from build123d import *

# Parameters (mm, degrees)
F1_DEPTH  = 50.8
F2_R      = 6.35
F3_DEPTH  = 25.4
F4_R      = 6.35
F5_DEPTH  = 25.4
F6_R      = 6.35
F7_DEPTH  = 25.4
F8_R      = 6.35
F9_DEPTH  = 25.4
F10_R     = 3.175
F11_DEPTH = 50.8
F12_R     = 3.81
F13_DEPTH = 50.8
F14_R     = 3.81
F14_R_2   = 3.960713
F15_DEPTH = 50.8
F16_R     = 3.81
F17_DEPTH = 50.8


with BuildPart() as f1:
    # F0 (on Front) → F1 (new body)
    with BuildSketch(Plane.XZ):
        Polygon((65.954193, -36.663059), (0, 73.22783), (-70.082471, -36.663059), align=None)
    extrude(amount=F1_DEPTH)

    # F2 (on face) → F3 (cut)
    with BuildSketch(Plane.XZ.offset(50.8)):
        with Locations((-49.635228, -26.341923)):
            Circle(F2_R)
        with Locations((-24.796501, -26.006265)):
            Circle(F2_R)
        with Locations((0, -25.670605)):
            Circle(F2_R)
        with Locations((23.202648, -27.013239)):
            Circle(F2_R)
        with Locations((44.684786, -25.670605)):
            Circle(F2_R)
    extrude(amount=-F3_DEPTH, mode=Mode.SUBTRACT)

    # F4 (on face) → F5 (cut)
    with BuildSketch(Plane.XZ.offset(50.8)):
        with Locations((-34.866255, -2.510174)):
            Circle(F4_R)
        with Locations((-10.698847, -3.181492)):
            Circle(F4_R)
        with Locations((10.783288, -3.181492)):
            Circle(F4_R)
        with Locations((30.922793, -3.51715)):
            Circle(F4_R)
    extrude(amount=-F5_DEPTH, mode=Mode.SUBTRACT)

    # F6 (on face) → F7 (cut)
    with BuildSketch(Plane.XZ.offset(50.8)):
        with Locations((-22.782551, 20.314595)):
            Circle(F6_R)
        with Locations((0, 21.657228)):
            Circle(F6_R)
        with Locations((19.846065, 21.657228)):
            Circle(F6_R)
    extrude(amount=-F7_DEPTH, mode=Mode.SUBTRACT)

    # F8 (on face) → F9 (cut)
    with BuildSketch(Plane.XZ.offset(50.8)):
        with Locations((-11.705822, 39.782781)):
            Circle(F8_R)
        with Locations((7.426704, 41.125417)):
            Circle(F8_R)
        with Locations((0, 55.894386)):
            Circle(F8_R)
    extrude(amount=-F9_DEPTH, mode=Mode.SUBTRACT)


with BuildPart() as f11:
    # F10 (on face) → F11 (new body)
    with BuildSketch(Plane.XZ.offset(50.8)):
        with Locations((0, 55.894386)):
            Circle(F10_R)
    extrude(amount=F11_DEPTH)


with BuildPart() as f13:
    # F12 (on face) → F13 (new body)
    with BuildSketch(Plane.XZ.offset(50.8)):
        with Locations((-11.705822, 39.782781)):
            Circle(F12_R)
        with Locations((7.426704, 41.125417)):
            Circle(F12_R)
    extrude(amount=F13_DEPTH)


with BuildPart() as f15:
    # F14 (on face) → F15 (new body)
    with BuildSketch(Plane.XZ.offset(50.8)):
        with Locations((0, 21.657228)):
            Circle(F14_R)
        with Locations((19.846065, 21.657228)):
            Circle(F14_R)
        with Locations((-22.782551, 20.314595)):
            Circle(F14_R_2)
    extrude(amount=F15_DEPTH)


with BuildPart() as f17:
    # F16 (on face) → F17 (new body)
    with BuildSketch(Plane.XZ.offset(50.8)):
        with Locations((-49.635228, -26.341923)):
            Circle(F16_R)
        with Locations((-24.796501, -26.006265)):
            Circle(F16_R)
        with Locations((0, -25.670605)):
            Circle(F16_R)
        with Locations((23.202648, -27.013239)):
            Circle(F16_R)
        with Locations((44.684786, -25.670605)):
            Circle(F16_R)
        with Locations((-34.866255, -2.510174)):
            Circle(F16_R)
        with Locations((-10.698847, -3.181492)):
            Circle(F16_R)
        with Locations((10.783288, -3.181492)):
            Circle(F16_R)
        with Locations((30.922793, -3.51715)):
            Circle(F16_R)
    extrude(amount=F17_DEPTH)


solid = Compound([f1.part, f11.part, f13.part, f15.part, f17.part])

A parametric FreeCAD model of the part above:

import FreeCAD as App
import Part
import Sketcher
Q = App.Units.Quantity

doc = App.newDocument("Part")
params = doc.addObject("Spreadsheet::Sheet", "Params")
for row, (alias, value) in enumerate([
    ("pad1_length", "2 in"),
    ("sketch2_diameter", "0.5 in"),
    ("pocket1_length", "1 in"),
    ("sketch3_diameter", "0.5 in"),
    ("pocket2_length", "1 in"),
    ("sketch4_diameter", "0.5 in"),
    ("pocket3_length", "1 in"),
    ("sketch5_diameter", "0.5 in"),
    ("pocket4_length", "1 in"),
    ("sketch6_diameter", "0.25 in"),
    ("pad2_length", "2 in"),
    ("sketch7_diameter", "0.3 in"),
    ("pad3_length", "2 in"),
    ("sketch8_diameter", "0.3 in"),
    ("pad4_length", "2 in"),
    ("sketch9_diameter", "0.3 in"),
    ("pad5_length", "2 in"),
], start=1):
    params.set(f"A{row}", alias)
    params.set(f"B{row}", "=" + value)
    params.setAlias(f"B{row}", alias)

body = doc.addObject("PartDesign::Body", "Body")

sketch1 = body.newObject("Sketcher::SketchObject", "Sketch")
sketch1.AttachmentSupport = (doc.getObject("XZ_Plane"), [""])
sketch1.MapMode = "FlatFace"
sketch1.addGeometry([
    Part.LineSegment(App.Vector(66, -37, 0), App.Vector(0, 73, 0)),
    Part.LineSegment(App.Vector(0, 73, 0), App.Vector(-70, -37, 0)),
    Part.LineSegment(App.Vector(-70, -37, 0), App.Vector(66, -37, 0)),
], False)
sketch1.addConstraint([
    Sketcher.Constraint("Coincident", 0, 2, 1, 1),
    Sketcher.Constraint("Coincident", 1, 2, 2, 1),
    Sketcher.Constraint("Coincident", 2, 2, 0, 1),
    Sketcher.Constraint("Horizontal", 2),
    Sketcher.Constraint("PointOnObject", 0, 2, -2),
    Sketcher.Constraint("DistanceX", 2, 1, 2, 2, Q("136.036664 mm")),
    Sketcher.Constraint("DistanceY", -1, 1, 0, 2, Q("73.22783 mm")),
    Sketcher.Constraint("DistanceX", 1, 2, -1, 1, Q("70.082471 mm")),
    Sketcher.Constraint("DistanceY", 1, 2, -1, 1, Q("36.663059 mm")),
])
pad1 = body.newObject("PartDesign::Pad", "Pad")
pad1.Profile = sketch1
pad1.setExpression("Length", "Params.pad1_length")

sketch2 = body.newObject("Sketcher::SketchObject", "Sketch001")
sketch2.AttachmentSupport = (doc.getObject("XZ_Plane"), [""])
sketch2.MapMode = "FlatFace"
sketch2.AttachmentOffset = App.Placement(App.Vector(0, 0, 2 * 25.4), App.Rotation())
sketch2.addGeometry([
    Part.Circle(App.Vector(-50, -26, 0), App.Vector(0, 0, 1), 6),
    Part.Circle(App.Vector(-25, -26, 0), App.Vector(0, 0, 1), 6),
    Part.Circle(App.Vector(0, -26, 0), App.Vector(0, 0, 1), 6),
    Part.Circle(App.Vector(23, -27, 0), App.Vector(0, 0, 1), 6),
    Part.Circle(App.Vector(45, -26, 0), App.Vector(0, 0, 1), 6),
], False)
sketch2.addConstraint([
    Sketcher.Constraint("Equal", 0, 1),
    Sketcher.Constraint("Equal", 1, 2),
    Sketcher.Constraint("Equal", 2, 3),
    Sketcher.Constraint("Equal", 3, 4),
    Sketcher.Constraint("PointOnObject", 2, 3, -2),
    Sketcher.Constraint("Horizontal", 2, 3, 4, 3),
    Sketcher.Constraint("Diameter", 0, Q("0.5 in")),
    Sketcher.Constraint("DistanceX", 1, 3, -1, 1, Q("24.796501 mm")),
    Sketcher.Constraint("DistanceX", -1, 1, 3, 3, Q("23.202648 mm")),
    Sketcher.Constraint("DistanceY", 3, 3, -1, 1, Q("27.013239 mm")),
    Sketcher.Constraint("DistanceY", 0, 3, 1, 3, Q("0.335658 mm")),
    Sketcher.Constraint("DistanceY", 1, 3, 2, 3, Q("0.33566 mm")),
    Sketcher.Constraint("DistanceX", 3, 3, 4, 3, Q("21.482138 mm")),
    Sketcher.Constraint("DistanceX", 0, 3, -1, 1, Q("49.635228 mm")),
    Sketcher.Constraint("DistanceY", 0, 3, -1, 1, Q("26.341923 mm")),
])
sketch2.setExpression("Constraints[6]", "Params.sketch2_diameter")
pocket1 = body.newObject("PartDesign::Pocket", "Pocket")
pocket1.Profile = sketch2
pocket1.setExpression("Length", "Params.pocket1_length")

sketch3 = body.newObject("Sketcher::SketchObject", "Sketch002")
sketch3.AttachmentSupport = (doc.getObject("XZ_Plane"), [""])
sketch3.MapMode = "FlatFace"
sketch3.AttachmentOffset = App.Placement(App.Vector(0, 0, 2 * 25.4), App.Rotation())
sketch3.addGeometry([
    Part.Circle(App.Vector(-35, -3, 0), App.Vector(0, 0, 1), 6),
    Part.Circle(App.Vector(-11, -3, 0), App.Vector(0, 0, 1), 6),
    Part.Circle(App.Vector(11, -3, 0), App.Vector(0, 0, 1), 6),
    Part.Circle(App.Vector(31, -4, 0), App.Vector(0, 0, 1), 6),
], False)
sketch3.addConstraint([
    Sketcher.Constraint("Equal", 0, 1),
    Sketcher.Constraint("Equal", 1, 2),
    Sketcher.Constraint("Equal", 2, 3),
    Sketcher.Constraint("Horizontal", 1, 3, 2, 3),
    Sketcher.Constraint("Diameter", 0, Q("0.5 in")),
    Sketcher.Constraint("DistanceY", 1, 3, -1, 1, Q("3.181492 mm")),
    Sketcher.Constraint("DistanceX", -1, 1, 2, 3, Q("10.783288 mm")),
    Sketcher.Constraint("DistanceY", 3, 3, -1, 1, Q("3.51715 mm")),
    Sketcher.Constraint("DistanceX", 0, 3, 1, 3, Q("24.167408 mm")),
    Sketcher.Constraint("DistanceX", 1, 3, 3, 3, Q("41.62164 mm")),
    Sketcher.Constraint("DistanceX", 0, 3, -1, 1, Q("34.866255 mm")),
    Sketcher.Constraint("DistanceY", 0, 3, -1, 1, Q("2.510174 mm")),
])
sketch3.setExpression("Constraints[4]", "Params.sketch3_diameter")
pocket2 = body.newObject("PartDesign::Pocket", "Pocket001")
pocket2.Profile = sketch3
pocket2.setExpression("Length", "Params.pocket2_length")

sketch4 = body.newObject("Sketcher::SketchObject", "Sketch003")
sketch4.AttachmentSupport = (doc.getObject("XZ_Plane"), [""])
sketch4.MapMode = "FlatFace"
sketch4.AttachmentOffset = App.Placement(App.Vector(0, 0, 2 * 25.4), App.Rotation())
sketch4.addGeometry([
    Part.Circle(App.Vector(-23, 20, 0), App.Vector(0, 0, 1), 6),
    Part.Circle(App.Vector(0, 22, 0), App.Vector(0, 0, 1), 6),
    Part.Circle(App.Vector(20, 22, 0), App.Vector(0, 0, 1), 6),
], False)
sketch4.addConstraint([
    Sketcher.Constraint("Equal", 0, 1),
    Sketcher.Constraint("Equal", 1, 2),
    Sketcher.Constraint("PointOnObject", 1, 3, -2),
    Sketcher.Constraint("Horizontal", 1, 3, 2, 3),
    Sketcher.Constraint("Diameter", 0, Q("0.5 in")),
    Sketcher.Constraint("DistanceX", 0, 3, -1, 1, Q("22.782551 mm")),
    Sketcher.Constraint("DistanceY", -1, 1, 1, 3, Q("21.657228 mm")),
    Sketcher.Constraint("DistanceY", -1, 1, 0, 3, Q("20.314595 mm")),
    Sketcher.Constraint("DistanceX", -1, 1, 2, 3, Q("19.846065 mm")),
])
sketch4.setExpression("Constraints[4]", "Params.sketch4_diameter")
pocket3 = body.newObject("PartDesign::Pocket", "Pocket002")
pocket3.Profile = sketch4
pocket3.setExpression("Length", "Params.pocket3_length")

sketch5 = body.newObject("Sketcher::SketchObject", "Sketch004")
sketch5.AttachmentSupport = (doc.getObject("XZ_Plane"), [""])
sketch5.MapMode = "FlatFace"
sketch5.AttachmentOffset = App.Placement(App.Vector(0, 0, 2 * 25.4), App.Rotation())
sketch5.addGeometry([
    Part.Circle(App.Vector(-12, 40, 0), App.Vector(0, 0, 1), 6),
    Part.Circle(App.Vector(7, 41, 0), App.Vector(0, 0, 1), 6),
    Part.Circle(App.Vector(0, 56, 0), App.Vector(0, 0, 1), 6),
], False)
sketch5.addConstraint([
    Sketcher.Constraint("Equal", 0, 1),
    Sketcher.Constraint("Equal", 1, 2),
    Sketcher.Constraint("PointOnObject", 2, 3, -2),
    Sketcher.Constraint("Diameter", 0, Q("0.5 in")),
    Sketcher.Constraint("DistanceY", -1, 1, 0, 3, Q("39.782781 mm")),
    Sketcher.Constraint("DistanceY", 1, 3, 2, 3, Q("14.768969 mm")),
    Sketcher.Constraint("DistanceX", 0, 3, -1, 1, Q("11.705822 mm")),
    Sketcher.Constraint("DistanceX", -1, 1, 1, 3, Q("7.426704 mm")),
    Sketcher.Constraint("DistanceY", -1, 1, 1, 3, Q("41.125417 mm")),
])
sketch5.setExpression("Constraints[3]", "Params.sketch5_diameter")
pocket4 = body.newObject("PartDesign::Pocket", "Pocket003")
pocket4.Profile = sketch5
pocket4.setExpression("Length", "Params.pocket4_length")
body2 = doc.addObject("PartDesign::Body", "Body001")

sketch6 = body2.newObject("Sketcher::SketchObject", "Sketch005")
sketch6.AttachmentSupport = (doc.getObject("XZ_Plane001"), [""])
sketch6.MapMode = "FlatFace"
sketch6.AttachmentOffset = App.Placement(App.Vector(0, 0, 2 * 25.4), App.Rotation())
sketch6.addGeometry(Part.Circle(App.Vector(0, 55.9, 0), App.Vector(0, 0, 1), 3.2), False)
sketch6.addConstraint([
    Sketcher.Constraint("PointOnObject", 0, 3, -2),
    Sketcher.Constraint("Diameter", 0, Q("0.25 in")),
    Sketcher.Constraint("DistanceY", -1, 1, 0, 3, Q("55.894386 mm")),
])
sketch6.setExpression("Constraints[1]", "Params.sketch6_diameter")
pad2 = body2.newObject("PartDesign::Pad", "Pad001")
pad2.Profile = sketch6
pad2.setExpression("Length", "Params.pad2_length")
body3 = doc.addObject("PartDesign::Body", "Body002")
body3.AllowCompound = True

sketch7 = body3.newObject("Sketcher::SketchObject", "Sketch006")
sketch7.AttachmentSupport = (doc.getObject("XZ_Plane002"), [""])
sketch7.MapMode = "FlatFace"
sketch7.AttachmentOffset = App.Placement(App.Vector(0, 0, 2 * 25.4), App.Rotation())
sketch7.addGeometry([
    Part.Circle(App.Vector(-11.7, 39.8, 0), App.Vector(0, 0, 1), 3.8),
    Part.Circle(App.Vector(7.4, 41.1, 0), App.Vector(0, 0, 1), 3.8),
], False)
sketch7.addConstraint([
    Sketcher.Constraint("Equal", 0, 1),
    Sketcher.Constraint("Diameter", 0, Q("0.3 in")),
    Sketcher.Constraint("DistanceY", -1, 1, 0, 3, Q("39.782781 mm")),
    Sketcher.Constraint("DistanceX", 0, 3, -1, 1, Q("11.705822 mm")),
    Sketcher.Constraint("DistanceX", -1, 1, 1, 3, Q("7.426704 mm")),
    Sketcher.Constraint("DistanceY", -1, 1, 1, 3, Q("41.125417 mm")),
])
sketch7.setExpression("Constraints[1]", "Params.sketch7_diameter")
pad3 = body3.newObject("PartDesign::Pad", "Pad002")
pad3.Profile = sketch7
pad3.setExpression("Length", "Params.pad3_length")
body4 = doc.addObject("PartDesign::Body", "Body003")
body4.AllowCompound = True

sketch8 = body4.newObject("Sketcher::SketchObject", "Sketch007")
sketch8.AttachmentSupport = (doc.getObject("XZ_Plane003"), [""])
sketch8.MapMode = "FlatFace"
sketch8.AttachmentOffset = App.Placement(App.Vector(0, 0, 2 * 25.4), App.Rotation())
sketch8.addGeometry([
    Part.Circle(App.Vector(0, 21.7, 0), App.Vector(0, 0, 1), 3.8),
    Part.Circle(App.Vector(19.8, 21.7, 0), App.Vector(0, 0, 1), 3.8),
    Part.Circle(App.Vector(-22.8, 20.3, 0), App.Vector(0, 0, 1), 4),
], False)
sketch8.addConstraint([
    Sketcher.Constraint("Equal", 0, 1),
    Sketcher.Constraint("PointOnObject", 0, 3, -2),
    Sketcher.Constraint("Horizontal", 0, 3, 1, 3),
    Sketcher.Constraint("Diameter", 0, Q("0.3 in")),
    Sketcher.Constraint("Diameter", 2, Q("7.921426 mm")),
    Sketcher.Constraint("DistanceY", -1, 1, 0, 3, Q("21.657228 mm")),
    Sketcher.Constraint("DistanceX", 2, 3, -1, 1, Q("22.782551 mm")),
    Sketcher.Constraint("DistanceX", -1, 1, 1, 3, Q("19.846065 mm")),
    Sketcher.Constraint("DistanceY", -1, 1, 2, 3, Q("20.314595 mm")),
])
sketch8.setExpression("Constraints[3]", "Params.sketch8_diameter")
pad4 = body4.newObject("PartDesign::Pad", "Pad003")
pad4.Profile = sketch8
pad4.setExpression("Length", "Params.pad4_length")
body5 = doc.addObject("PartDesign::Body", "Body004")
body5.AllowCompound = True

sketch9 = body5.newObject("Sketcher::SketchObject", "Sketch008")
sketch9.AttachmentSupport = (doc.getObject("XZ_Plane004"), [""])
sketch9.MapMode = "FlatFace"
sketch9.AttachmentOffset = App.Placement(App.Vector(0, 0, 2 * 25.4), App.Rotation())
sketch9.addGeometry([
    Part.Circle(App.Vector(-49.6, -26.3, 0), App.Vector(0, 0, 1), 3.8),
    Part.Circle(App.Vector(-24.8, -26, 0), App.Vector(0, 0, 1), 3.8),
    Part.Circle(App.Vector(0, -25.7, 0), App.Vector(0, 0, 1), 3.8),
    Part.Circle(App.Vector(23.2, -27, 0), App.Vector(0, 0, 1), 3.8),
    Part.Circle(App.Vector(44.7, -25.7, 0), App.Vector(0, 0, 1), 3.8),
    Part.Circle(App.Vector(-34.9, -2.5, 0), App.Vector(0, 0, 1), 3.8),
    Part.Circle(App.Vector(-10.7, -3.2, 0), App.Vector(0, 0, 1), 3.8),
    Part.Circle(App.Vector(10.8, -3.2, 0), App.Vector(0, 0, 1), 3.8),
    Part.Circle(App.Vector(30.9, -3.5, 0), App.Vector(0, 0, 1), 3.8),
], False)
sketch9.addConstraint([
    Sketcher.Constraint("Equal", 0, 1),
    Sketcher.Constraint("Equal", 1, 2),
    Sketcher.Constraint("Equal", 2, 3),
    Sketcher.Constraint("Equal", 3, 4),
    Sketcher.Constraint("Equal", 4, 5),
    Sketcher.Constraint("Equal", 5, 6),
    Sketcher.Constraint("Equal", 6, 7),
    Sketcher.Constraint("Equal", 7, 8),
    Sketcher.Constraint("PointOnObject", 2, 3, -2),
    Sketcher.Constraint("Horizontal", 2, 3, 4, 3),
    Sketcher.Constraint("Horizontal", 6, 3, 7, 3),
    Sketcher.Constraint("Diameter", 0, Q("0.3 in")),
    Sketcher.Constraint("DistanceX", 1, 3, -1, 1, Q("24.796501 mm")),
    Sketcher.Constraint("DistanceX", 7, 3, 4, 3, Q("33.901498 mm")),
    Sketcher.Constraint("DistanceX", -1, 1, 3, 3, Q("23.202648 mm")),
    Sketcher.Constraint("DistanceY", 3, 3, -1, 1, Q("27.013239 mm")),
    Sketcher.Constraint("DistanceY", 6, 3, -1, 1, Q("3.181492 mm")),
    Sketcher.Constraint("DistanceX", -1, 1, 7, 3, Q("10.783288 mm")),
    Sketcher.Constraint("DistanceY", 8, 3, -1, 1, Q("3.51715 mm")),
    Sketcher.Constraint("DistanceY", 0, 3, 1, 3, Q("0.335658 mm")),
    Sketcher.Constraint("DistanceY", 1, 3, 2, 3, Q("0.33566 mm")),
    Sketcher.Constraint("DistanceY", 1, 3, 5, 3, Q("23.496091 mm")),
    Sketcher.Constraint("DistanceX", 5, 3, 4, 3, Q("79.551041 mm")),
    Sketcher.Constraint("DistanceX", 5, 3, 6, 3, Q("24.167408 mm")),
    Sketcher.Constraint("DistanceX", 0, 3, 6, 3, Q("38.936381 mm")),
    Sketcher.Constraint("DistanceY", 0, 3, 6, 3, Q("23.160431 mm")),
    Sketcher.Constraint("DistanceX", 6, 3, 8, 3, Q("41.62164 mm")),
])
sketch9.setExpression("Constraints[11]", "Params.sketch9_diameter")
pad5 = body5.newObject("PartDesign::Pad", "Pad004")
pad5.Profile = sketch9
pad5.setExpression("Length", "Params.pad5_length")

doc.recompute()
